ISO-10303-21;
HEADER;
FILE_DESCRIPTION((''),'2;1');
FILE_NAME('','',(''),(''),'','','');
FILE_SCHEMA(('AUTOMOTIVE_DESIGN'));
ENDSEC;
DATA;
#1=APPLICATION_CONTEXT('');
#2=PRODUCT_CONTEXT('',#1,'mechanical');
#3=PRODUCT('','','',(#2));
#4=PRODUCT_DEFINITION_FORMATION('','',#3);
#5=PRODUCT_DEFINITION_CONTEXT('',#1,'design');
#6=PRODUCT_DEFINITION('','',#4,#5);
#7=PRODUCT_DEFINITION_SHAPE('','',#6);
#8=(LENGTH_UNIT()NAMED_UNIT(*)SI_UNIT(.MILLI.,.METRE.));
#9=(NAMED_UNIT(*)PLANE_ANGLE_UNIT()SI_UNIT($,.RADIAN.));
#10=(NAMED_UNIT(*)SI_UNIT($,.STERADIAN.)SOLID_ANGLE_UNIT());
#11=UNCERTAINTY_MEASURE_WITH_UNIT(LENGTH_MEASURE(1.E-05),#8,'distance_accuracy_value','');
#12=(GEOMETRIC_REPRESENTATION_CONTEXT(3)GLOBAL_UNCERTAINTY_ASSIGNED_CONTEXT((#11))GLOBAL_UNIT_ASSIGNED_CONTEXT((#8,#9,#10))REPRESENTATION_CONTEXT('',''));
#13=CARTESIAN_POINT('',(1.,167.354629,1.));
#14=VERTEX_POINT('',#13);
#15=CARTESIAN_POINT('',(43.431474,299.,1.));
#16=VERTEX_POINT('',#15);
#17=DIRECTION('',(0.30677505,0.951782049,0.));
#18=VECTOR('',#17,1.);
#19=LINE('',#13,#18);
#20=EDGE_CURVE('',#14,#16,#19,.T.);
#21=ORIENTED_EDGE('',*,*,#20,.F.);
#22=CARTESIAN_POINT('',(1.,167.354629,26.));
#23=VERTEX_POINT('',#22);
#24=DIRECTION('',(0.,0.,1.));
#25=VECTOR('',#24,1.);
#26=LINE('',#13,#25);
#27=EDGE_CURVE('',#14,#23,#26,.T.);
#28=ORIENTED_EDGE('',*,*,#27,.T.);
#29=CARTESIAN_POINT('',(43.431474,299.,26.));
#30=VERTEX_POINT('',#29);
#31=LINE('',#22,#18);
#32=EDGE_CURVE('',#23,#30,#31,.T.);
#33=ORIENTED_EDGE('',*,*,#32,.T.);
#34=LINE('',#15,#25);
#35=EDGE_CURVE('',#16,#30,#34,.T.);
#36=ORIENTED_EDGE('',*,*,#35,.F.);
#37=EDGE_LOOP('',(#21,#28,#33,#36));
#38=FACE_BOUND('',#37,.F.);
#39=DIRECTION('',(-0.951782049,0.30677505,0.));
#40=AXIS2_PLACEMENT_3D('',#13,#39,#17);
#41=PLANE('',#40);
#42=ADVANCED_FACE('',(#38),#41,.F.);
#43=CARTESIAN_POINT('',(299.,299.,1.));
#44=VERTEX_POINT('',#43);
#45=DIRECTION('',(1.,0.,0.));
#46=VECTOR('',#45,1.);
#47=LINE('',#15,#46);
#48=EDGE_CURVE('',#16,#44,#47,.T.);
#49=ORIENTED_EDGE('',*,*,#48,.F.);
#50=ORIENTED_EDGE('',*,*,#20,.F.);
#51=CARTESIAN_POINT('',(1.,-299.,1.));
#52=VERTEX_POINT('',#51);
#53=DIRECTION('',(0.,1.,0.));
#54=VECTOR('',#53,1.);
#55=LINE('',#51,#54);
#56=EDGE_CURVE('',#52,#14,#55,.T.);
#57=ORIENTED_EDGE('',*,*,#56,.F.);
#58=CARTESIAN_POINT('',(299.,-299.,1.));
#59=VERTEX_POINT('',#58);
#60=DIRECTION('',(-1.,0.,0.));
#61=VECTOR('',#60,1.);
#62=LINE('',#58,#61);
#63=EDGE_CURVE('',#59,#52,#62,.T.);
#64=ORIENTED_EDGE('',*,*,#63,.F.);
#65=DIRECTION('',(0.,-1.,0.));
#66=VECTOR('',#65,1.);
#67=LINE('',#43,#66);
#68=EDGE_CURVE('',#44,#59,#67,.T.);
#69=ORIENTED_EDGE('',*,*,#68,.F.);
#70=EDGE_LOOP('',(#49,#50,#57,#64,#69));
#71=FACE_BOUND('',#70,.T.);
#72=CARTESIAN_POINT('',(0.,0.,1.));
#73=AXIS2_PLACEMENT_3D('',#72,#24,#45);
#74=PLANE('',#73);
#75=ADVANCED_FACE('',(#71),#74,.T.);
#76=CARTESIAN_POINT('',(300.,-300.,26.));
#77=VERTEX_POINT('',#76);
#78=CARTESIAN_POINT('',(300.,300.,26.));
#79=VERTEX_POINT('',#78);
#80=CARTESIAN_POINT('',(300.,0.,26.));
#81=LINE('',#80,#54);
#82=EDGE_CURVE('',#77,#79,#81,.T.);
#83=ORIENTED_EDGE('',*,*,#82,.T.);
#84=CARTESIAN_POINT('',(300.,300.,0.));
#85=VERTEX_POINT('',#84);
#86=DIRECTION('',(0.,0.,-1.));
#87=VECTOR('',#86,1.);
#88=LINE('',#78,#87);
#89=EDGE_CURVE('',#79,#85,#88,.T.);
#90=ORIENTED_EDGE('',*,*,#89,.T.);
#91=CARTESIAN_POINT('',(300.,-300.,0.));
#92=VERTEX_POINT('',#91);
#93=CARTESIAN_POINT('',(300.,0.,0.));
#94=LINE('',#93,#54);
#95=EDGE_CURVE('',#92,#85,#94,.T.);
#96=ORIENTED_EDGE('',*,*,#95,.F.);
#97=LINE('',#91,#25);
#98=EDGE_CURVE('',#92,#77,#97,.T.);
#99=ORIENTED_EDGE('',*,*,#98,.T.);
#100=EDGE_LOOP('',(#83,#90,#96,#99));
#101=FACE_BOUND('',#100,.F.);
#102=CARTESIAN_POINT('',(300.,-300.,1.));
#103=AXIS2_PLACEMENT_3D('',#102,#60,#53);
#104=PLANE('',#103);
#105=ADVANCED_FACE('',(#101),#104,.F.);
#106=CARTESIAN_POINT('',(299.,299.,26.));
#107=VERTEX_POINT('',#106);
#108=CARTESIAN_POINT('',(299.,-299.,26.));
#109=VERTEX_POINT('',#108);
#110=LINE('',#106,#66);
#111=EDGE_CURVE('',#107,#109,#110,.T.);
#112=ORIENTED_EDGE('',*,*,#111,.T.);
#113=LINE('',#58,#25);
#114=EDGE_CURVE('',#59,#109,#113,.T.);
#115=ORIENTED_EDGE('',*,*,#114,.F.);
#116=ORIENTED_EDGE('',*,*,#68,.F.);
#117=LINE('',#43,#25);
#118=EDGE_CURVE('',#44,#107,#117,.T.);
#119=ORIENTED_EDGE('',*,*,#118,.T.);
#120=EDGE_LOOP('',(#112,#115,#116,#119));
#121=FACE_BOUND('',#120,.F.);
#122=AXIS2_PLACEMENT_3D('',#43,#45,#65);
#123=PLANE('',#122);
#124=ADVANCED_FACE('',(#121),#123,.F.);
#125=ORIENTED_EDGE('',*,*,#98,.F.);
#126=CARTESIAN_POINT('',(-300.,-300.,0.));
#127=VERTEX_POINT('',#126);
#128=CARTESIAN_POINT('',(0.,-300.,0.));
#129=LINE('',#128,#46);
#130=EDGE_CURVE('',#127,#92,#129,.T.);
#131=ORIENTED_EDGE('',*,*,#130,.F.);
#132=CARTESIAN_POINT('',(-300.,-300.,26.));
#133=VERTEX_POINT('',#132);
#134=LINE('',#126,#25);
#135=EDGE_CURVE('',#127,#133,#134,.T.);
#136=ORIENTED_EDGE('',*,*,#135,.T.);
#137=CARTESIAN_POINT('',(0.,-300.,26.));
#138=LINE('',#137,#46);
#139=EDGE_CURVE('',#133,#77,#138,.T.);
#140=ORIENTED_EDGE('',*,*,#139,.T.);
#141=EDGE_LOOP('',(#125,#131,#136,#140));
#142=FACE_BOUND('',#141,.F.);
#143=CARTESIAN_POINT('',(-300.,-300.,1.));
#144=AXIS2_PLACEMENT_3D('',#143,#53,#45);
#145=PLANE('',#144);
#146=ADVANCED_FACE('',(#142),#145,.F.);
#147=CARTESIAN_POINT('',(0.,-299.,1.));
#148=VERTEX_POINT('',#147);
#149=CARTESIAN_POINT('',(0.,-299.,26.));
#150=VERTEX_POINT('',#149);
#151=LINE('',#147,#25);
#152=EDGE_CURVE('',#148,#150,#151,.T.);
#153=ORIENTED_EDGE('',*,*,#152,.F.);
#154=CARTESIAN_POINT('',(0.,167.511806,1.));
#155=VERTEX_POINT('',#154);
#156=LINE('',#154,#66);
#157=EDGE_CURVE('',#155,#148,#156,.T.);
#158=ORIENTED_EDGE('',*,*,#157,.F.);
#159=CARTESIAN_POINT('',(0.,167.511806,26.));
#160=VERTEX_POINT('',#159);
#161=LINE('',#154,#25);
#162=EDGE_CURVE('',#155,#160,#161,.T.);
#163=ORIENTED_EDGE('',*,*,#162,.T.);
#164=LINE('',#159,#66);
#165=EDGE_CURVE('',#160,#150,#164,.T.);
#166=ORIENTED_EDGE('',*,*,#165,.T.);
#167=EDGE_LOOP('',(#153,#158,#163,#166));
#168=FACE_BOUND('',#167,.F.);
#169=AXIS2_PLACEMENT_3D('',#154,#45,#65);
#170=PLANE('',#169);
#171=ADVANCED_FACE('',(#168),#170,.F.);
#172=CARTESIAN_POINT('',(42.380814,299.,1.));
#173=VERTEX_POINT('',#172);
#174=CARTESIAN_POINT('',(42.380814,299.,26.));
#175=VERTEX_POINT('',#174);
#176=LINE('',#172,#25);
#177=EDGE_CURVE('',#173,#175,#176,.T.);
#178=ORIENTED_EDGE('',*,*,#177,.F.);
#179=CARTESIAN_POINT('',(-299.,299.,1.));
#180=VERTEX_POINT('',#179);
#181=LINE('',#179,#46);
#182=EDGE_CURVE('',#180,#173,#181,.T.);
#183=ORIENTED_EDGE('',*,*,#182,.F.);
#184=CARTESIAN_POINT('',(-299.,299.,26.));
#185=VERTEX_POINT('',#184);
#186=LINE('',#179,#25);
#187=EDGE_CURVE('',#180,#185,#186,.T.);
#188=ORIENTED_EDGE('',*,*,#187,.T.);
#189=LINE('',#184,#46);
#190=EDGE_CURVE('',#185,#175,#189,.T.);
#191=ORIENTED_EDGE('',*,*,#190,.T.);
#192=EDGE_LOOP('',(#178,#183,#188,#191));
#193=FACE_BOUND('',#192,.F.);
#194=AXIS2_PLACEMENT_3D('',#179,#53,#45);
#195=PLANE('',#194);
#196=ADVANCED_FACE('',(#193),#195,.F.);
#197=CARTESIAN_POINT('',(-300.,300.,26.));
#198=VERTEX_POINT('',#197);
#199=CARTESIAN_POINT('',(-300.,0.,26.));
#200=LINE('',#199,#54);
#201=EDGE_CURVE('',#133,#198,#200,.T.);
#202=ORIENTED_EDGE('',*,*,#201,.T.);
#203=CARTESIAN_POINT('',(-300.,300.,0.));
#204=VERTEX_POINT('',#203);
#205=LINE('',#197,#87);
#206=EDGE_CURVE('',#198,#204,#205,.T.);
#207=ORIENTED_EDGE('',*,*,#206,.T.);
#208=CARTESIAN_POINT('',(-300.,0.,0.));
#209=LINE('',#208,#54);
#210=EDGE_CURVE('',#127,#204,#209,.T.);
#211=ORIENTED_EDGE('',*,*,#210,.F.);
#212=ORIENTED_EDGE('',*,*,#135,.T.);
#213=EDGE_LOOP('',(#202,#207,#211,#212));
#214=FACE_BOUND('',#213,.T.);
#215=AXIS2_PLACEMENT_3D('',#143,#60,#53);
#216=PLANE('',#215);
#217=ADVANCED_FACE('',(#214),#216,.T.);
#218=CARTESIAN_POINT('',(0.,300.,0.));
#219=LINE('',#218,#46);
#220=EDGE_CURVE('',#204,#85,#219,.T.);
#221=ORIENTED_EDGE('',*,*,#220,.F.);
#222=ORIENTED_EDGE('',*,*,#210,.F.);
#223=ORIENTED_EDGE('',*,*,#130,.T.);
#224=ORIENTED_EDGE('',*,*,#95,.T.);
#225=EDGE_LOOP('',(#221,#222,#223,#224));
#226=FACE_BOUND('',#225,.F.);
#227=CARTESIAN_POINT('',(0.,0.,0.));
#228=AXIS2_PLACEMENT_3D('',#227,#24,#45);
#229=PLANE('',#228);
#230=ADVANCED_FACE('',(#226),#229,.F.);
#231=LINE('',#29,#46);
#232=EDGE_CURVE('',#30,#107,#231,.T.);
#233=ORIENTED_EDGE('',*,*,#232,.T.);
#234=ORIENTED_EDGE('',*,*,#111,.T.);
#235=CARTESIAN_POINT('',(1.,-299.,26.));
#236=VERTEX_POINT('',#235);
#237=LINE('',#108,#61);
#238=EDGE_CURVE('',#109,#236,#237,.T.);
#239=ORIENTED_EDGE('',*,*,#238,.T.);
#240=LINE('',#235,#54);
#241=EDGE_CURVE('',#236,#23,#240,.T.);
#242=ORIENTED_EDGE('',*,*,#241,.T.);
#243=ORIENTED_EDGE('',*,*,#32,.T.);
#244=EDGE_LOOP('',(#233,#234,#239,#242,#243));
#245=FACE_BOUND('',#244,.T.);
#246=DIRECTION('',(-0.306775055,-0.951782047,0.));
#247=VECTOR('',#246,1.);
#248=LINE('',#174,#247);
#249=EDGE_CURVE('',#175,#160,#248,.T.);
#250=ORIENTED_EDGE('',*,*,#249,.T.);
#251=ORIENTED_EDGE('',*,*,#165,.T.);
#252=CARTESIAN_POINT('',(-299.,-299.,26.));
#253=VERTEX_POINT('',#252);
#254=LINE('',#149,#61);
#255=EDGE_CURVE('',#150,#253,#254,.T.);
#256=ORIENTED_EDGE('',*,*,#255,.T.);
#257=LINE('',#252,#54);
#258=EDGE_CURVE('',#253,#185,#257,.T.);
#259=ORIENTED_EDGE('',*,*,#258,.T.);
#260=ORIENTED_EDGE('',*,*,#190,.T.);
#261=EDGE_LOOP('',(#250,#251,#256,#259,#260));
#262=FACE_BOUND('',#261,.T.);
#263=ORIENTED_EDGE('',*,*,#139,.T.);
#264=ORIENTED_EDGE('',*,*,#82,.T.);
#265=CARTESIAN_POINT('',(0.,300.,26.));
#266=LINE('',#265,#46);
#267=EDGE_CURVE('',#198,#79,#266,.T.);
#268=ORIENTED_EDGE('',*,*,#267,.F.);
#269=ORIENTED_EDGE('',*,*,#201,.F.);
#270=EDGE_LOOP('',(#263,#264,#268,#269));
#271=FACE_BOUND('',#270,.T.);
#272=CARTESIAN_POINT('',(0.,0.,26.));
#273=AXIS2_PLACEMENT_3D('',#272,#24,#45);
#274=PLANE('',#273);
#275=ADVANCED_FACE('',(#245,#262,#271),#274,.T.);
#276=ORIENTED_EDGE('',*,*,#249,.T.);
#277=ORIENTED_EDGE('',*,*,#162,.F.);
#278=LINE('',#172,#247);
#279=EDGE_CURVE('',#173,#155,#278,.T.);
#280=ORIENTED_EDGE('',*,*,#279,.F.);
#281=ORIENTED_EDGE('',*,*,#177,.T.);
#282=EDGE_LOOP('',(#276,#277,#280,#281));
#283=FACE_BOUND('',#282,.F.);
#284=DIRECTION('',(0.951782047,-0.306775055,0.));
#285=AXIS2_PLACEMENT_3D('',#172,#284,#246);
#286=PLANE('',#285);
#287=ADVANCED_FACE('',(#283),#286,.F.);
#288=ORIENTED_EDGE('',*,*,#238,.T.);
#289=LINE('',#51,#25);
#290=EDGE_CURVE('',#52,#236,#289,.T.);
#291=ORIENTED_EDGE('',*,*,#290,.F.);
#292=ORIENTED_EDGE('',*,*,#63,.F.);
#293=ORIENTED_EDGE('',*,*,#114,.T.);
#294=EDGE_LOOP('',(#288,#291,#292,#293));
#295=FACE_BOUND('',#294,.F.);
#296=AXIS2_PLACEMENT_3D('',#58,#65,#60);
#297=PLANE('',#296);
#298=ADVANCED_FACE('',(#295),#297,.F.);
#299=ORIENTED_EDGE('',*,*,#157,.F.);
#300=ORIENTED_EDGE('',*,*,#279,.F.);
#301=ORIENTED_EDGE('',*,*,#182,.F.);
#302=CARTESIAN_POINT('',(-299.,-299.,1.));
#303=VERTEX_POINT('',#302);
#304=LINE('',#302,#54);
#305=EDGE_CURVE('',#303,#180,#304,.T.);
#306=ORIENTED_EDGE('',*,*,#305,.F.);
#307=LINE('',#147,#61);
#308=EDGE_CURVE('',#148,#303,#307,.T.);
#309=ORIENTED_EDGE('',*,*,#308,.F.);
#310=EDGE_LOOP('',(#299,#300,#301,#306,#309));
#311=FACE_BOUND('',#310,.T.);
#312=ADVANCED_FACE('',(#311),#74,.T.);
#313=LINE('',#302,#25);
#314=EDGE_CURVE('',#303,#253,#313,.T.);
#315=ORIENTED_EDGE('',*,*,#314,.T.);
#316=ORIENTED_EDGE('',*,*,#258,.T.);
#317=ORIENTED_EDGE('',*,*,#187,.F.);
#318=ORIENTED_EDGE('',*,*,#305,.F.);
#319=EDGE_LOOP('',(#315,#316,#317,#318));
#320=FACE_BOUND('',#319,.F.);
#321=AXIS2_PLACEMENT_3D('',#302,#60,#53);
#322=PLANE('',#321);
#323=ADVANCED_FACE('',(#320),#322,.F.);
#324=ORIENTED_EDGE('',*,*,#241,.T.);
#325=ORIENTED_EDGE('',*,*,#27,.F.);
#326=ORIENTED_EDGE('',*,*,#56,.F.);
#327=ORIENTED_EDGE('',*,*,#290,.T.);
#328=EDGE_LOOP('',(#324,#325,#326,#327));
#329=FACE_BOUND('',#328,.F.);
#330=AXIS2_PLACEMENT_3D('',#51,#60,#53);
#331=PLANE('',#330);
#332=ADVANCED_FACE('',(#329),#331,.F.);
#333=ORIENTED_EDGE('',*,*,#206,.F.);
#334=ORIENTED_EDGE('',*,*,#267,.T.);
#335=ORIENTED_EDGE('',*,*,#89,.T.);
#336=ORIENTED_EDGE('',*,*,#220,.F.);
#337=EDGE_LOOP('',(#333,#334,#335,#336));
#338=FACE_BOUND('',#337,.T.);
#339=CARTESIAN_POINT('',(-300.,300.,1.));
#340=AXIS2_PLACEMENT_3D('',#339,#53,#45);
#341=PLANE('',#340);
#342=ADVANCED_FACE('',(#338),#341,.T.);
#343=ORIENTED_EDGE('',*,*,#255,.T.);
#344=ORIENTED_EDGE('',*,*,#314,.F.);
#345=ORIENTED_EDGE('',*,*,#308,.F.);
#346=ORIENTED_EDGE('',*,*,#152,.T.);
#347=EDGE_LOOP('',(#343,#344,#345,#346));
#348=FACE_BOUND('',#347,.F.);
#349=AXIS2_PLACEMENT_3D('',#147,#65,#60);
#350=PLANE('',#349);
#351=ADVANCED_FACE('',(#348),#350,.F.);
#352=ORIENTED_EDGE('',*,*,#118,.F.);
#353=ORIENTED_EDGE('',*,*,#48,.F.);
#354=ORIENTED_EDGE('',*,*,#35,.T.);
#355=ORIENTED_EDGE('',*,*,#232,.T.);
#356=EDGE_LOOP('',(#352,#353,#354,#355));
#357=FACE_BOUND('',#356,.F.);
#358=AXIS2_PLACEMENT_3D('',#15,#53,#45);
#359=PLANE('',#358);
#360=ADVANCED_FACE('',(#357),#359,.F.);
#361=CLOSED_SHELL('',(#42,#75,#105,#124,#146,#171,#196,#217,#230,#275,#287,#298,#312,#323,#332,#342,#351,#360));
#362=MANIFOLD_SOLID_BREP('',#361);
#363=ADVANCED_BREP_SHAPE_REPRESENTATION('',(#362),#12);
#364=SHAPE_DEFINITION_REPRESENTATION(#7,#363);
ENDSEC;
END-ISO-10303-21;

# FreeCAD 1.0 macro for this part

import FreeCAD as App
import Part
import Sketcher
Q = App.Units.Quantity

doc = App.newDocument("Part")
body = doc.addObject("PartDesign::Body", "Body")

sketch1 = body.newObject("Sketcher::SketchObject", "Sketch")
sketch1.AttachmentSupport = (doc.getObject("XY_Plane"), [""])
sketch1.MapMode = "FlatFace"
sketch1.addGeometry(Part.LineSegment(App.Vector(-300, 300, 0), App.Vector(-300, -300, 0)), False)
sketch1.addGeometry(Part.LineSegment(App.Vector(-300, -300, 0), App.Vector(300, -300, 0)), False)
sketch1.addGeometry(Part.LineSegment(App.Vector(300, -300, 0), App.Vector(300, 300, 0)), False)
sketch1.addGeometry(Part.LineSegment(App.Vector(300, 300, 0), App.Vector(-300, 300, 0)), False)
sketch1.addConstraint(Sketcher.Constraint("Coincident", 0, 2, 1, 1))
sketch1.addConstraint(Sketcher.Constraint("Coincident", 1, 2, 2, 1))
sketch1.addConstraint(Sketcher.Constraint("Coincident", 2, 2, 3, 1))
sketch1.addConstraint(Sketcher.Constraint("Coincident", 3, 2, 0, 1))
sketch1.addConstraint(Sketcher.Constraint("Vertical", 0))
sketch1.addConstraint(Sketcher.Constraint("Horizontal", 1))
sketch1.addConstraint(Sketcher.Constraint("Vertical", 2))
sketch1.addConstraint(Sketcher.Constraint("Horizontal", 3))
sketch1.addConstraint(Sketcher.Constraint("Symmetric", 0, 2, 2, 2, -1, 1))
sketch1.addConstraint(Sketcher.Constraint("Equal", 3, 0))
sketch1.addConstraint(Sketcher.Constraint("DistanceX", 1, 1, 1, 2, Q("600 mm")))
pad1 = body.newObject("PartDesign::Pad", "Pad")
pad1.Profile = sketch1
pad1.Length = 1

sketch2 = body.newObject("Sketcher::SketchObject", "Sketch001")
sketch2.AttachmentSupport = (doc.getObject("XY_Plane"), [""])
sketch2.MapMode = "FlatFace"
sketch2.AttachmentOffset = App.Placement(App.Vector(0, 0, 1), App.Rotation())
sketch2.addGeometry(Part.LineSegment(App.Vector(-300, 300, 0), App.Vector(-300, -300, 0)), False)
sketch2.addGeometry(Part.LineSegment(App.Vector(-300, -300, 0), App.Vector(300, -300, 0)), False)
sketch2.addGeometry(Part.LineSegment(App.Vector(300, -300, 0), App.Vector(300, 300, 0)), False)
sketch2.addGeometry(Part.LineSegment(App.Vector(300, 300, 0), App.Vector(-300, 300, 0)), False)
sketch2.addGeometry(Part.LineSegment(App.Vector(0, -299, 0), App.Vector(-299, -299, 0)), False)
sketch2.addGeometry(Part.LineSegment(App.Vector(-299, -299, 0), App.Vector(-299, 299, 0)), False)
sketch2.addGeometry(Part.LineSegment(App.Vector(-299, 299, 0), App.Vector(42, 299, 0)), False)
sketch2.addGeometry(Part.LineSegment(App.Vector(42, 299, 0), App.Vector(0, 168, 0)), False)
sketch2.addGeometry(Part.LineSegment(App.Vector(0, 168, 0), App.Vector(0, -299, 0)), False)
sketch2.addGeometry(Part.LineSegment(App.Vector(1, 167, 0), App.Vector(43, 299, 0)), False)
sketch2.addGeometry(Part.LineSegment(App.Vector(43, 299, 0), App.Vector(299, 299, 0)), False)
sketch2.addGeometry(Part.LineSegment(App.Vector(299, 299, 0), App.Vector(299, -299, 0)), False)
sketch2.addGeometry(Part.LineSegment(App.Vector(299, -299, 0), App.Vector(1, -299, 0)), False)
sketch2.addGeometry(Part.LineSegment(App.Vector(1, -299, 0), App.Vector(1, 167, 0)), False)
sketch2.addConstraint(Sketcher.Constraint("Coincident", 0, 2, 1, 1))
sketch2.addConstraint(Sketcher.Constraint("Coincident", 1, 2, 2, 1))
sketch2.addConstraint(Sketcher.Constraint("Coincident", 2, 2, 3, 1))
sketch2.addConstraint(Sketcher.Constraint("Coincident", 3, 2, 0, 1))
sketch2.addConstraint(Sketcher.Constraint("Coincident", 4, 2, 5, 1))
sketch2.addConstraint(Sketcher.Constraint("Coincident", 5, 2, 6, 1))
sketch2.addConstraint(Sketcher.Constraint("Coincident", 6, 2, 7, 1))
sketch2.addConstraint(Sketcher.Constraint("Coincident", 7, 2, 8, 1))
sketch2.addConstraint(Sketcher.Constraint("Coincident", 8, 2, 4, 1))
sketch2.addConstraint(Sketcher.Constraint("Coincident", 9, 2, 10, 1))
sketch2.addConstraint(Sketcher.Constraint("Coincident", 10, 2, 11, 1))
sketch2.addConstraint(Sketcher.Constraint("Coincident", 11, 2, 12, 1))
sketch2.addConstraint(Sketcher.Constraint("Coincident", 12, 2, 13, 1))
sketch2.addConstraint(Sketcher.Constraint("Coincident", 13, 2, 9, 1))
sketch2.addConstraint(Sketcher.Constraint("Vertical", 0))
sketch2.addConstraint(Sketcher.Constraint("Horizontal", 1))
sketch2.addConstraint(Sketcher.Constraint("Vertical", 2))
sketch2.addConstraint(Sketcher.Constraint("Horizontal", 3))
sketch2.addConstraint(Sketcher.Constraint("Horizontal", 4))
sketch2.addConstraint(Sketcher.Constraint("Vertical", 5))
sketch2.addConstraint(Sketcher.Constraint("Horizontal", 6))
sketch2.addConstraint(Sketcher.Constraint("Vertical", 8))
sketch2.addConstraint(Sketcher.Constraint("Horizontal", 10))
sketch2.addConstraint(Sketcher.Constraint("Vertical", 11))
sketch2.addConstraint(Sketcher.Constraint("Horizontal", 12))
sketch2.addConstraint(Sketcher.Constraint("Vertical", 13))
sketch2.addConstraint(Sketcher.Constraint("Symmetric", 0, 2, 2, 2, -1, 1))
sketch2.addConstraint(Sketcher.Constraint("Symmetric", 4, 2, 10, 2, -1, 1))
sketch2.addConstraint(Sketcher.Constraint("PointOnObject", 7, 2, -2))
sketch2.addConstraint(Sketcher.Constraint("Parallel", 7, 9))
sketch2.addConstraint(Sketcher.Constraint("Horizontal", 6, 2, 9, 2))
sketch2.addConstraint(Sketcher.Constraint("Horizontal", 8, 2, 11, 2))
sketch2.addConstraint(Sketcher.Constraint("Equal", 3, 0))
sketch2.addConstraint(Sketcher.Constraint("DistanceX", 1, 1, 1, 2, Q("600 mm")))
sketch2.addConstraint(Sketcher.Constraint("DistanceX", 4, 2, 4, 1, Q("299 mm")))
sketch2.addConstraint(Sketcher.Constraint("DistanceX", 12, 2, 12, 1, Q("298 mm")))
sketch2.addConstraint(Sketcher.Constraint("DistanceY", 5, 1, 5, 2, Q("598 mm")))
sketch2.addConstraint(Sketcher.Constraint("DistanceY", 13, 1, 13, 2, Q("466.354629 mm")))
sketch2.addConstraint(Sketcher.Constraint("Distance", 7, Q("138.149479 mm")))
sketch2.addConstraint(Sketcher.Constraint("Distance", 9, Q("138.314619 mm")))
pad2 = body.newObject("PartDesign::Pad", "Pad001")
pad2.Profile = sketch2
pad2.Length = 25

doc.recompute()
